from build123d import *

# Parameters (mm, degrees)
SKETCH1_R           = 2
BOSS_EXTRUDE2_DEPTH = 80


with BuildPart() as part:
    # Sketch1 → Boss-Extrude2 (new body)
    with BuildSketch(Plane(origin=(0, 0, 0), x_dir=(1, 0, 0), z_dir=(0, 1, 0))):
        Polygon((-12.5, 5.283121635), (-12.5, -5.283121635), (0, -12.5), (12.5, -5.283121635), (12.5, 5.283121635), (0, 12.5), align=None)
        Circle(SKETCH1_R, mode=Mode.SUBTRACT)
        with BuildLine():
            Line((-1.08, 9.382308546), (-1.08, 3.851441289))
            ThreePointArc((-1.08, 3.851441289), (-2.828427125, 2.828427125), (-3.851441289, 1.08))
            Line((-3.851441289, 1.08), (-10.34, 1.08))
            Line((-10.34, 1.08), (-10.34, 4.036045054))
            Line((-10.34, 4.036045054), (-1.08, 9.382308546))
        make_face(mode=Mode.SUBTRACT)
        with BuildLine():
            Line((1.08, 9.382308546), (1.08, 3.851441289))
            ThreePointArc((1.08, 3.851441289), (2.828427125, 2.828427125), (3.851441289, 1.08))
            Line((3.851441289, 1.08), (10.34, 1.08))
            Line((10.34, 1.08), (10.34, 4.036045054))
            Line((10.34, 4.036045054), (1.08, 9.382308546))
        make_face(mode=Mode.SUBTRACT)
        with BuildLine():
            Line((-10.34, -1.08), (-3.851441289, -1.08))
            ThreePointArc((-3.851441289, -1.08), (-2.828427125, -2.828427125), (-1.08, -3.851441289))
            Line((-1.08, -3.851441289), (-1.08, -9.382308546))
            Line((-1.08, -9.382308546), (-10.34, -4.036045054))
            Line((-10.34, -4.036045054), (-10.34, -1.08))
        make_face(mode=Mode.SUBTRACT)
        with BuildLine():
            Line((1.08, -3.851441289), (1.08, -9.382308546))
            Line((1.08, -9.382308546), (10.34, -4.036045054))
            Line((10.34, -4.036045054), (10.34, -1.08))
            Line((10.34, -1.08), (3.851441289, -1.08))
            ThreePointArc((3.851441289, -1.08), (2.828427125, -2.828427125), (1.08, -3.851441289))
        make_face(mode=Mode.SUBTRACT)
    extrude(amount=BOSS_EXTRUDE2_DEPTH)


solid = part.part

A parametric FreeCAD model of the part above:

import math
import FreeCAD as App
import Part
import Sketcher

V = App.Vector
Q = App.Units.Quantity


def add_polygon(sketch, points):
    """Adds a closed chain of lines whose ends are joined by coincident constraints."""
    first, n = sketch.GeometryCount, len(points)
    for a, b in zip(points, points[1:] + points[:1]):
        sketch.addGeometry(Part.LineSegment(App.Vector(*a, 0), App.Vector(*b, 0)), False)
    for i in range(n):
        sketch.addConstraint(Sketcher.Constraint("Coincident", first + i, 2, first + (i + 1) % n, 1))

doc = App.newDocument("Part")
params = doc.addObject("Spreadsheet::Sheet", "Params")
for row, (alias, value) in enumerate([
    ("sketch1_diameter", "4 mm"),
    ("sketch1_radius", "4 mm"),
    ("pad1_length", "80 mm"),
], start=1):
    params.set(f"A{row}", alias)
    params.set(f"B{row}", "=" + value)
    params.setAlias(f"B{row}", alias)

body = doc.addObject("PartDesign::Body", "Body")

# Sketch on XZ plane
sketch1 = body.newObject("Sketcher::SketchObject", "Sketch")
sketch1.AttachmentSupport = (doc.getObject("XZ_Plane"), [""])
sketch1.MapMode = "FlatFace"
add_polygon(sketch1, [(-12.5, -5.3), (-12.5, 5.3), (0, 12.5), (12.5, 5.3), (12.5, -5.3), (0, -12.5)])  # lines 0-5
sketch1.addGeometry(Part.LineSegment(V(-10.3, 4, 0), V(-10.3, 1.1, 0)), False)  # 6
sketch1.addGeometry(Part.LineSegment(V(-10.3, 1.1, 0), V(-3.9, 1.1, 0)), False)  # 7
sketch1.addGeometry(Part.ArcOfCircle(Part.Circle(V(0, 0, 0), V(0, 0, 1), 4), math.radians(106), math.radians(164)), False)  # 8
sketch1.addGeometry(Part.LineSegment(V(-1.1, 3.9, 0), V(-1.1, 9.4, 0)), False)  # 9
sketch1.addGeometry(Part.LineSegment(V(-1.1, 9.4, 0), V(-10.3, 4, 0)), False)  # 10
sketch1.addGeometry(Part.LineSegment(V(1.1, 9.4, 0), V(1.1, 3.9, 0)), False)  # 11
sketch1.addGeometry(Part.ArcOfCircle(Part.Circle(V(0, 0, 0), V(0, 0, 1), 4), math.radians(16), math.radians(74)), False)  # 12
sketch1.addGeometry(Part.LineSegment(V(3.9, 1.1, 0), V(10.3, 1.1, 0)), False)  # 13
sketch1.addGeometry(Part.LineSegment(V(10.3, 1.1, 0), V(10.3, 4, 0)), False)  # 14
sketch1.addGeometry(Part.LineSegment(V(10.3, 4, 0), V(1.1, 9.4, 0)), False)  # 15
sketch1.addGeometry(Part.LineSegment(V(-10.3, -4, 0), V(-1.1, -9.4, 0)), False)  # 16
sketch1.addGeometry(Part.LineSegment(V(-1.1, -9.4, 0), V(-1.1, -3.9, 0)), False)  # 17
sketch1.addGeometry(Part.ArcOfCircle(Part.Circle(V(0, 0, 0), V(0, 0, 1), 4), math.radians(-164), math.radians(-106)), False)  # 18
sketch1.addGeometry(Part.LineSegment(V(-3.9, -1.1, 0), V(-10.3, -1.1, 0)), False)  # 19
sketch1.addGeometry(Part.LineSegment(V(-10.3, -1.1, 0), V(-10.3, -4, 0)), False)  # 20
sketch1.addGeometry(Part.Circle(V(0, 0, 0), V(0, 0, 1), 2), False)  # 21
sketch1.addGeometry(Part.LineSegment(V(1.1, -3.9, 0), V(1.1, -9.4, 0)), False)  # 22
sketch1.addGeometry(Part.LineSegment(V(1.1, -9.4, 0), V(10.3, -4, 0)), False)  # 23
sketch1.addGeometry(Part.LineSegment(V(10.3, -4, 0), V(10.3, -1.1, 0)), False)  # 24
sketch1.addGeometry(Part.LineSegment(V(10.3, -1.1, 0), V(3.9, -1.1, 0)), False)  # 25
sketch1.addGeometry(Part.ArcOfCircle(Part.Circle(V(0, 0, 0), V(0, 0, 1), 4), math.radians(-74), math.radians(-16)), False)  # 26
sketch1.addConstraint([
    Sketcher.Constraint("Coincident", 6, 2, 7, 1),
    Sketcher.Constraint("Coincident", 7, 2, 8, 2),
    Sketcher.Constraint("Coincident", 8, 1, 9, 1),
    Sketcher.Constraint("Coincident", 9, 2, 10, 1),
    Sketcher.Constraint("Coincident", 10, 2, 6, 1),
    Sketcher.Constraint("Coincident", 11, 2, 12, 2),
    Sketcher.Constraint("Coincident", 12, 1, 13, 1),
    Sketcher.Constraint("Coincident", 13, 2, 14, 1),
    Sketcher.Constraint("Coincident", 14, 2, 15, 1),
    Sketcher.Constraint("Coincident", 15, 2, 11, 1),
    Sketcher.Constraint("Coincident", 16, 2, 17, 1),
    Sketcher.Constraint("Coincident", 17, 2, 18, 2),
    Sketcher.Constraint("Coincident", 18, 1, 19, 1),
    Sketcher.Constraint("Coincident", 19, 2, 20, 1),
    Sketcher.Constraint("Coincident", 20, 2, 16, 1),
    Sketcher.Constraint("Coincident", 22, 2, 23, 1),
    Sketcher.Constraint("Coincident", 23, 2, 24, 1),
    Sketcher.Constraint("Coincident", 24, 2, 25, 1),
    Sketcher.Constraint("Coincident", 25, 2, 26, 2),
    Sketcher.Constraint("Coincident", 26, 1, 22, 1),
    Sketcher.Constraint("Vertical", 0),
    Sketcher.Constraint("Vertical", 3),
    Sketcher.Constraint("Vertical", 6),
    Sketcher.Constraint("Horizontal", 7),
    Sketcher.Constraint("Vertical", 9),
    Sketcher.Constraint("Vertical", 11),
    Sketcher.Constraint("Horizontal", 13),
    Sketcher.Constraint("Vertical", 14),
    Sketcher.Constraint("Vertical", 17),
    Sketcher.Constraint("Horizontal", 19),
    Sketcher.Constraint("Vertical", 20),
    Sketcher.Constraint("Vertical", 22),
    Sketcher.Constraint("Vertical", 24),
    Sketcher.Constraint("Horizontal", 25),
    Sketcher.Constraint("Coincident", 8, 3, -1, 1),
    Sketcher.Constraint("Coincident", 12, 3, -1, 1),
    Sketcher.Constraint("Coincident", 18, 3, -1, 1),
    Sketcher.Constraint("Coincident", 21, 3, -1, 1),
    Sketcher.Constraint("Coincident", 26, 3, -1, 1),
    Sketcher.Constraint("Equal", 8, 12),
    Sketcher.Constraint("Equal", 12, 18),
    Sketcher.Constraint("Equal", 18, 26),
    Sketcher.Constraint("Symmetric", 0, 2, 3, 2, -1, 1),
    Sketcher.Constraint("Symmetric", 1, 2, 4, 2, -1, 1),
    Sketcher.Constraint("Symmetric", 15, 2, 16, 2, -1, 1),
    Sketcher.Constraint("Symmetric", 13, 2, 19, 2, -1, 1),
    Sketcher.Constraint("Symmetric", 9, 2, 22, 2, -1, 1),
    Sketcher.Constraint("Symmetric", 10, 2, 23, 2, -1, 1),
    Sketcher.Constraint("Symmetric", 6, 2, 13, 2, -2),
    Sketcher.Constraint("Symmetric", 9, 2, 15, 2, -2),
    Sketcher.Constraint("PointOnObject", 1, 2, -2),
    Sketcher.Constraint("Parallel", 2, 5),
    Sketcher.Constraint("Parallel", 4, 10),
    Sketcher.Constraint("Parallel", 5, 15),
    Sketcher.Constraint("Parallel", 15, 16),
    Sketcher.Constraint("Horizontal", 0, 2, 2, 2),
    Sketcher.Constraint("Horizontal", 19, 2, 24, 2),
    Sketcher.Constraint("Diameter", 21, 4.0),
    Sketcher.Constraint("Radius", 8, 4.0),
    Sketcher.Constraint("Angle", 1, Q("30 deg")),
    Sketcher.Constraint("DistanceX", 0, 2, -1, 1, 12.5),
    Sketcher.Constraint("DistanceY", -1, 1, 1, 2, 12.5),
    Sketcher.Constraint("DistanceX", 6, 2, -1, 1, 10.34),
    Sketcher.Constraint("DistanceY", -1, 1, 6, 2, 1.08),
    Sketcher.Constraint("DistanceX", 8, 1, -1, 1, 1.08),
    Sketcher.Constraint("DistanceY", 6, 2, 6, 1, 2.956045),
])
sketch1.setExpression("Constraints[63]", "Params.sketch1_diameter")
sketch1.setExpression("Constraints[64]", "Params.sketch1_radius")
pad1 = body.newObject("PartDesign::Pad", "Pad")
pad1.Profile = sketch1
pad1.setExpression("Length", "Params.pad1_length")
pad1.Reversed = True

doc.recompute()
